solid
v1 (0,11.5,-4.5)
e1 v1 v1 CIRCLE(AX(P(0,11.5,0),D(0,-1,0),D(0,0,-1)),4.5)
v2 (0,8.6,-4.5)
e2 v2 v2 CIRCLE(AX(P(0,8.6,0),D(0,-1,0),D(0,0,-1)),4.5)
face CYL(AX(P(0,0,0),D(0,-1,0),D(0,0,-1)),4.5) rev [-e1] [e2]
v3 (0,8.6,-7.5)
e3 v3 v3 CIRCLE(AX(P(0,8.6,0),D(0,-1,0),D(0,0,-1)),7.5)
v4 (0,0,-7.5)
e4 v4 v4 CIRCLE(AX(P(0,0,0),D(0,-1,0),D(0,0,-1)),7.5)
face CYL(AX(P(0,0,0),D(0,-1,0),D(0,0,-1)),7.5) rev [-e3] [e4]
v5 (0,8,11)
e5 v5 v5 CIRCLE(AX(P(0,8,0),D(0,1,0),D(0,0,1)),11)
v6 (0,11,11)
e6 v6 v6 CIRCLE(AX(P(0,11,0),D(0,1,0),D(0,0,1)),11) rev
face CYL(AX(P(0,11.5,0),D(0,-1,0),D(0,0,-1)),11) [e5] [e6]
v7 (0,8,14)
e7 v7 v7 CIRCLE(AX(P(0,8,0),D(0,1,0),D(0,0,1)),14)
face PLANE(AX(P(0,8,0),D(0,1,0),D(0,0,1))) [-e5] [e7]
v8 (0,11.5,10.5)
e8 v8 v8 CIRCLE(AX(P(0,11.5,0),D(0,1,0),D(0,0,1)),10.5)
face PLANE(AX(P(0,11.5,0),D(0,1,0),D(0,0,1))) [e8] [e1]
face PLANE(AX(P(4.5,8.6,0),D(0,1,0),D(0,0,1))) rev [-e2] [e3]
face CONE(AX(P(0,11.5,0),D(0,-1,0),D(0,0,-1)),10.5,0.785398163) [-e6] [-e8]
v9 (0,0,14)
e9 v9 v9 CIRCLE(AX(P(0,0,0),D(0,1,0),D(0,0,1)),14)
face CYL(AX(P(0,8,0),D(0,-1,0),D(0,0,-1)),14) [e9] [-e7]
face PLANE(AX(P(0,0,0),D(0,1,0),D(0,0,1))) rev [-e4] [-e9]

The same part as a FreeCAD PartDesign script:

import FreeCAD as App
import Part
import Sketcher
from FreeCAD import Vector


def edges_at(feature, points):
    """Names of the edges that pass closest to the given points."""
    edges = feature.Shape.Edges
    near = lambda p: min(range(len(edges)), key=lambda i: edges[i].distToShape(Part.Vertex(*p))[0])
    return sorted({f"Edge{near(p) + 1}" for p in points})

doc = App.newDocument("Part")
body = doc.addObject("PartDesign::Body", "Body")

# Sketch on XZ plane
sketch1 = doc.addObject("Sketcher::SketchObject", "Sketch")
body.addObject(sketch1)
sketch1.AttachmentSupport = (doc.XZ_Plane, [""])
sketch1.MapMode = "FlatFace"
sketch1.addGeometry(Part.Circle(Vector(0, 0, 0), Vector(0, 0, 1), 14), False)
sketch1.addConstraint(Sketcher.Constraint("Coincident", 0, 3, -1, 1))
sketch1.addConstraint(Sketcher.Constraint("Diameter", 0, 28.0))
pad1 = doc.addObject("PartDesign::Pad", "Pad")
body.addObject(pad1)
pad1.Profile = sketch1
pad1.Length = 8
pad1.Reversed = True

# Sketch on XZ plane
sketch2 = doc.addObject("Sketcher::SketchObject", "Sketch001")
body.addObject(sketch2)
sketch2.AttachmentSupport = (doc.XZ_Plane, [""])
sketch2.MapMode = "FlatFace"
sketch2.AttachmentOffset = App.Placement(Vector(0, 0, -8), App.Rotation())
sketch2.addGeometry(Part.Circle(Vector(0, 0, 0), Vector(0, 0, 1), 11), False)
sketch2.addConstraint(Sketcher.Constraint("Coincident", 0, 3, -1, 1))
sketch2.addConstraint(Sketcher.Constraint("Diameter", 0, 22.0))
pad2 = doc.addObject("PartDesign::Pad", "Pad001")
body.addObject(pad2)
pad2.Profile = sketch2
pad2.Length = 3.5
pad2.Reversed = True

# Sketch on XZ plane
sketch3 = doc.addObject("Sketcher::SketchObject", "Sketch002")
body.addObject(sketch3)
sketch3.AttachmentSupport = (doc.XZ_Plane, [""])
sketch3.MapMode = "FlatFace"
sketch3.addGeometry(Part.Circle(Vector(0, 0, 0), Vector(0, 0, 1), 4.5), False)
sketch3.addConstraint(Sketcher.Constraint("Coincident", 0, 3, -1, 1))
sketch3.addConstraint(Sketcher.Constraint("Diameter", 0, 9.0))
doc.recompute()
hole = doc.addObject("PartDesign::Hole", "Hole")
body.addObject(hole)
hole.Profile = sketch3
hole.ThreadType = "None"
hole.Diameter = 9
hole.DepthType = "ThroughAll"
hole.HoleCutType = "Counterbore"
hole.HoleCutDiameter = 15
hole.HoleCutDepth = 8.6
doc.recompute()

chamfer = doc.addObject("PartDesign::Chamfer", "Chamfer")
body.addObject(chamfer)
chamfer.Base = (hole, edges_at(hole, [(0, 11.5, -11)]))
chamfer.Size = 0.5

doc.recompute()
